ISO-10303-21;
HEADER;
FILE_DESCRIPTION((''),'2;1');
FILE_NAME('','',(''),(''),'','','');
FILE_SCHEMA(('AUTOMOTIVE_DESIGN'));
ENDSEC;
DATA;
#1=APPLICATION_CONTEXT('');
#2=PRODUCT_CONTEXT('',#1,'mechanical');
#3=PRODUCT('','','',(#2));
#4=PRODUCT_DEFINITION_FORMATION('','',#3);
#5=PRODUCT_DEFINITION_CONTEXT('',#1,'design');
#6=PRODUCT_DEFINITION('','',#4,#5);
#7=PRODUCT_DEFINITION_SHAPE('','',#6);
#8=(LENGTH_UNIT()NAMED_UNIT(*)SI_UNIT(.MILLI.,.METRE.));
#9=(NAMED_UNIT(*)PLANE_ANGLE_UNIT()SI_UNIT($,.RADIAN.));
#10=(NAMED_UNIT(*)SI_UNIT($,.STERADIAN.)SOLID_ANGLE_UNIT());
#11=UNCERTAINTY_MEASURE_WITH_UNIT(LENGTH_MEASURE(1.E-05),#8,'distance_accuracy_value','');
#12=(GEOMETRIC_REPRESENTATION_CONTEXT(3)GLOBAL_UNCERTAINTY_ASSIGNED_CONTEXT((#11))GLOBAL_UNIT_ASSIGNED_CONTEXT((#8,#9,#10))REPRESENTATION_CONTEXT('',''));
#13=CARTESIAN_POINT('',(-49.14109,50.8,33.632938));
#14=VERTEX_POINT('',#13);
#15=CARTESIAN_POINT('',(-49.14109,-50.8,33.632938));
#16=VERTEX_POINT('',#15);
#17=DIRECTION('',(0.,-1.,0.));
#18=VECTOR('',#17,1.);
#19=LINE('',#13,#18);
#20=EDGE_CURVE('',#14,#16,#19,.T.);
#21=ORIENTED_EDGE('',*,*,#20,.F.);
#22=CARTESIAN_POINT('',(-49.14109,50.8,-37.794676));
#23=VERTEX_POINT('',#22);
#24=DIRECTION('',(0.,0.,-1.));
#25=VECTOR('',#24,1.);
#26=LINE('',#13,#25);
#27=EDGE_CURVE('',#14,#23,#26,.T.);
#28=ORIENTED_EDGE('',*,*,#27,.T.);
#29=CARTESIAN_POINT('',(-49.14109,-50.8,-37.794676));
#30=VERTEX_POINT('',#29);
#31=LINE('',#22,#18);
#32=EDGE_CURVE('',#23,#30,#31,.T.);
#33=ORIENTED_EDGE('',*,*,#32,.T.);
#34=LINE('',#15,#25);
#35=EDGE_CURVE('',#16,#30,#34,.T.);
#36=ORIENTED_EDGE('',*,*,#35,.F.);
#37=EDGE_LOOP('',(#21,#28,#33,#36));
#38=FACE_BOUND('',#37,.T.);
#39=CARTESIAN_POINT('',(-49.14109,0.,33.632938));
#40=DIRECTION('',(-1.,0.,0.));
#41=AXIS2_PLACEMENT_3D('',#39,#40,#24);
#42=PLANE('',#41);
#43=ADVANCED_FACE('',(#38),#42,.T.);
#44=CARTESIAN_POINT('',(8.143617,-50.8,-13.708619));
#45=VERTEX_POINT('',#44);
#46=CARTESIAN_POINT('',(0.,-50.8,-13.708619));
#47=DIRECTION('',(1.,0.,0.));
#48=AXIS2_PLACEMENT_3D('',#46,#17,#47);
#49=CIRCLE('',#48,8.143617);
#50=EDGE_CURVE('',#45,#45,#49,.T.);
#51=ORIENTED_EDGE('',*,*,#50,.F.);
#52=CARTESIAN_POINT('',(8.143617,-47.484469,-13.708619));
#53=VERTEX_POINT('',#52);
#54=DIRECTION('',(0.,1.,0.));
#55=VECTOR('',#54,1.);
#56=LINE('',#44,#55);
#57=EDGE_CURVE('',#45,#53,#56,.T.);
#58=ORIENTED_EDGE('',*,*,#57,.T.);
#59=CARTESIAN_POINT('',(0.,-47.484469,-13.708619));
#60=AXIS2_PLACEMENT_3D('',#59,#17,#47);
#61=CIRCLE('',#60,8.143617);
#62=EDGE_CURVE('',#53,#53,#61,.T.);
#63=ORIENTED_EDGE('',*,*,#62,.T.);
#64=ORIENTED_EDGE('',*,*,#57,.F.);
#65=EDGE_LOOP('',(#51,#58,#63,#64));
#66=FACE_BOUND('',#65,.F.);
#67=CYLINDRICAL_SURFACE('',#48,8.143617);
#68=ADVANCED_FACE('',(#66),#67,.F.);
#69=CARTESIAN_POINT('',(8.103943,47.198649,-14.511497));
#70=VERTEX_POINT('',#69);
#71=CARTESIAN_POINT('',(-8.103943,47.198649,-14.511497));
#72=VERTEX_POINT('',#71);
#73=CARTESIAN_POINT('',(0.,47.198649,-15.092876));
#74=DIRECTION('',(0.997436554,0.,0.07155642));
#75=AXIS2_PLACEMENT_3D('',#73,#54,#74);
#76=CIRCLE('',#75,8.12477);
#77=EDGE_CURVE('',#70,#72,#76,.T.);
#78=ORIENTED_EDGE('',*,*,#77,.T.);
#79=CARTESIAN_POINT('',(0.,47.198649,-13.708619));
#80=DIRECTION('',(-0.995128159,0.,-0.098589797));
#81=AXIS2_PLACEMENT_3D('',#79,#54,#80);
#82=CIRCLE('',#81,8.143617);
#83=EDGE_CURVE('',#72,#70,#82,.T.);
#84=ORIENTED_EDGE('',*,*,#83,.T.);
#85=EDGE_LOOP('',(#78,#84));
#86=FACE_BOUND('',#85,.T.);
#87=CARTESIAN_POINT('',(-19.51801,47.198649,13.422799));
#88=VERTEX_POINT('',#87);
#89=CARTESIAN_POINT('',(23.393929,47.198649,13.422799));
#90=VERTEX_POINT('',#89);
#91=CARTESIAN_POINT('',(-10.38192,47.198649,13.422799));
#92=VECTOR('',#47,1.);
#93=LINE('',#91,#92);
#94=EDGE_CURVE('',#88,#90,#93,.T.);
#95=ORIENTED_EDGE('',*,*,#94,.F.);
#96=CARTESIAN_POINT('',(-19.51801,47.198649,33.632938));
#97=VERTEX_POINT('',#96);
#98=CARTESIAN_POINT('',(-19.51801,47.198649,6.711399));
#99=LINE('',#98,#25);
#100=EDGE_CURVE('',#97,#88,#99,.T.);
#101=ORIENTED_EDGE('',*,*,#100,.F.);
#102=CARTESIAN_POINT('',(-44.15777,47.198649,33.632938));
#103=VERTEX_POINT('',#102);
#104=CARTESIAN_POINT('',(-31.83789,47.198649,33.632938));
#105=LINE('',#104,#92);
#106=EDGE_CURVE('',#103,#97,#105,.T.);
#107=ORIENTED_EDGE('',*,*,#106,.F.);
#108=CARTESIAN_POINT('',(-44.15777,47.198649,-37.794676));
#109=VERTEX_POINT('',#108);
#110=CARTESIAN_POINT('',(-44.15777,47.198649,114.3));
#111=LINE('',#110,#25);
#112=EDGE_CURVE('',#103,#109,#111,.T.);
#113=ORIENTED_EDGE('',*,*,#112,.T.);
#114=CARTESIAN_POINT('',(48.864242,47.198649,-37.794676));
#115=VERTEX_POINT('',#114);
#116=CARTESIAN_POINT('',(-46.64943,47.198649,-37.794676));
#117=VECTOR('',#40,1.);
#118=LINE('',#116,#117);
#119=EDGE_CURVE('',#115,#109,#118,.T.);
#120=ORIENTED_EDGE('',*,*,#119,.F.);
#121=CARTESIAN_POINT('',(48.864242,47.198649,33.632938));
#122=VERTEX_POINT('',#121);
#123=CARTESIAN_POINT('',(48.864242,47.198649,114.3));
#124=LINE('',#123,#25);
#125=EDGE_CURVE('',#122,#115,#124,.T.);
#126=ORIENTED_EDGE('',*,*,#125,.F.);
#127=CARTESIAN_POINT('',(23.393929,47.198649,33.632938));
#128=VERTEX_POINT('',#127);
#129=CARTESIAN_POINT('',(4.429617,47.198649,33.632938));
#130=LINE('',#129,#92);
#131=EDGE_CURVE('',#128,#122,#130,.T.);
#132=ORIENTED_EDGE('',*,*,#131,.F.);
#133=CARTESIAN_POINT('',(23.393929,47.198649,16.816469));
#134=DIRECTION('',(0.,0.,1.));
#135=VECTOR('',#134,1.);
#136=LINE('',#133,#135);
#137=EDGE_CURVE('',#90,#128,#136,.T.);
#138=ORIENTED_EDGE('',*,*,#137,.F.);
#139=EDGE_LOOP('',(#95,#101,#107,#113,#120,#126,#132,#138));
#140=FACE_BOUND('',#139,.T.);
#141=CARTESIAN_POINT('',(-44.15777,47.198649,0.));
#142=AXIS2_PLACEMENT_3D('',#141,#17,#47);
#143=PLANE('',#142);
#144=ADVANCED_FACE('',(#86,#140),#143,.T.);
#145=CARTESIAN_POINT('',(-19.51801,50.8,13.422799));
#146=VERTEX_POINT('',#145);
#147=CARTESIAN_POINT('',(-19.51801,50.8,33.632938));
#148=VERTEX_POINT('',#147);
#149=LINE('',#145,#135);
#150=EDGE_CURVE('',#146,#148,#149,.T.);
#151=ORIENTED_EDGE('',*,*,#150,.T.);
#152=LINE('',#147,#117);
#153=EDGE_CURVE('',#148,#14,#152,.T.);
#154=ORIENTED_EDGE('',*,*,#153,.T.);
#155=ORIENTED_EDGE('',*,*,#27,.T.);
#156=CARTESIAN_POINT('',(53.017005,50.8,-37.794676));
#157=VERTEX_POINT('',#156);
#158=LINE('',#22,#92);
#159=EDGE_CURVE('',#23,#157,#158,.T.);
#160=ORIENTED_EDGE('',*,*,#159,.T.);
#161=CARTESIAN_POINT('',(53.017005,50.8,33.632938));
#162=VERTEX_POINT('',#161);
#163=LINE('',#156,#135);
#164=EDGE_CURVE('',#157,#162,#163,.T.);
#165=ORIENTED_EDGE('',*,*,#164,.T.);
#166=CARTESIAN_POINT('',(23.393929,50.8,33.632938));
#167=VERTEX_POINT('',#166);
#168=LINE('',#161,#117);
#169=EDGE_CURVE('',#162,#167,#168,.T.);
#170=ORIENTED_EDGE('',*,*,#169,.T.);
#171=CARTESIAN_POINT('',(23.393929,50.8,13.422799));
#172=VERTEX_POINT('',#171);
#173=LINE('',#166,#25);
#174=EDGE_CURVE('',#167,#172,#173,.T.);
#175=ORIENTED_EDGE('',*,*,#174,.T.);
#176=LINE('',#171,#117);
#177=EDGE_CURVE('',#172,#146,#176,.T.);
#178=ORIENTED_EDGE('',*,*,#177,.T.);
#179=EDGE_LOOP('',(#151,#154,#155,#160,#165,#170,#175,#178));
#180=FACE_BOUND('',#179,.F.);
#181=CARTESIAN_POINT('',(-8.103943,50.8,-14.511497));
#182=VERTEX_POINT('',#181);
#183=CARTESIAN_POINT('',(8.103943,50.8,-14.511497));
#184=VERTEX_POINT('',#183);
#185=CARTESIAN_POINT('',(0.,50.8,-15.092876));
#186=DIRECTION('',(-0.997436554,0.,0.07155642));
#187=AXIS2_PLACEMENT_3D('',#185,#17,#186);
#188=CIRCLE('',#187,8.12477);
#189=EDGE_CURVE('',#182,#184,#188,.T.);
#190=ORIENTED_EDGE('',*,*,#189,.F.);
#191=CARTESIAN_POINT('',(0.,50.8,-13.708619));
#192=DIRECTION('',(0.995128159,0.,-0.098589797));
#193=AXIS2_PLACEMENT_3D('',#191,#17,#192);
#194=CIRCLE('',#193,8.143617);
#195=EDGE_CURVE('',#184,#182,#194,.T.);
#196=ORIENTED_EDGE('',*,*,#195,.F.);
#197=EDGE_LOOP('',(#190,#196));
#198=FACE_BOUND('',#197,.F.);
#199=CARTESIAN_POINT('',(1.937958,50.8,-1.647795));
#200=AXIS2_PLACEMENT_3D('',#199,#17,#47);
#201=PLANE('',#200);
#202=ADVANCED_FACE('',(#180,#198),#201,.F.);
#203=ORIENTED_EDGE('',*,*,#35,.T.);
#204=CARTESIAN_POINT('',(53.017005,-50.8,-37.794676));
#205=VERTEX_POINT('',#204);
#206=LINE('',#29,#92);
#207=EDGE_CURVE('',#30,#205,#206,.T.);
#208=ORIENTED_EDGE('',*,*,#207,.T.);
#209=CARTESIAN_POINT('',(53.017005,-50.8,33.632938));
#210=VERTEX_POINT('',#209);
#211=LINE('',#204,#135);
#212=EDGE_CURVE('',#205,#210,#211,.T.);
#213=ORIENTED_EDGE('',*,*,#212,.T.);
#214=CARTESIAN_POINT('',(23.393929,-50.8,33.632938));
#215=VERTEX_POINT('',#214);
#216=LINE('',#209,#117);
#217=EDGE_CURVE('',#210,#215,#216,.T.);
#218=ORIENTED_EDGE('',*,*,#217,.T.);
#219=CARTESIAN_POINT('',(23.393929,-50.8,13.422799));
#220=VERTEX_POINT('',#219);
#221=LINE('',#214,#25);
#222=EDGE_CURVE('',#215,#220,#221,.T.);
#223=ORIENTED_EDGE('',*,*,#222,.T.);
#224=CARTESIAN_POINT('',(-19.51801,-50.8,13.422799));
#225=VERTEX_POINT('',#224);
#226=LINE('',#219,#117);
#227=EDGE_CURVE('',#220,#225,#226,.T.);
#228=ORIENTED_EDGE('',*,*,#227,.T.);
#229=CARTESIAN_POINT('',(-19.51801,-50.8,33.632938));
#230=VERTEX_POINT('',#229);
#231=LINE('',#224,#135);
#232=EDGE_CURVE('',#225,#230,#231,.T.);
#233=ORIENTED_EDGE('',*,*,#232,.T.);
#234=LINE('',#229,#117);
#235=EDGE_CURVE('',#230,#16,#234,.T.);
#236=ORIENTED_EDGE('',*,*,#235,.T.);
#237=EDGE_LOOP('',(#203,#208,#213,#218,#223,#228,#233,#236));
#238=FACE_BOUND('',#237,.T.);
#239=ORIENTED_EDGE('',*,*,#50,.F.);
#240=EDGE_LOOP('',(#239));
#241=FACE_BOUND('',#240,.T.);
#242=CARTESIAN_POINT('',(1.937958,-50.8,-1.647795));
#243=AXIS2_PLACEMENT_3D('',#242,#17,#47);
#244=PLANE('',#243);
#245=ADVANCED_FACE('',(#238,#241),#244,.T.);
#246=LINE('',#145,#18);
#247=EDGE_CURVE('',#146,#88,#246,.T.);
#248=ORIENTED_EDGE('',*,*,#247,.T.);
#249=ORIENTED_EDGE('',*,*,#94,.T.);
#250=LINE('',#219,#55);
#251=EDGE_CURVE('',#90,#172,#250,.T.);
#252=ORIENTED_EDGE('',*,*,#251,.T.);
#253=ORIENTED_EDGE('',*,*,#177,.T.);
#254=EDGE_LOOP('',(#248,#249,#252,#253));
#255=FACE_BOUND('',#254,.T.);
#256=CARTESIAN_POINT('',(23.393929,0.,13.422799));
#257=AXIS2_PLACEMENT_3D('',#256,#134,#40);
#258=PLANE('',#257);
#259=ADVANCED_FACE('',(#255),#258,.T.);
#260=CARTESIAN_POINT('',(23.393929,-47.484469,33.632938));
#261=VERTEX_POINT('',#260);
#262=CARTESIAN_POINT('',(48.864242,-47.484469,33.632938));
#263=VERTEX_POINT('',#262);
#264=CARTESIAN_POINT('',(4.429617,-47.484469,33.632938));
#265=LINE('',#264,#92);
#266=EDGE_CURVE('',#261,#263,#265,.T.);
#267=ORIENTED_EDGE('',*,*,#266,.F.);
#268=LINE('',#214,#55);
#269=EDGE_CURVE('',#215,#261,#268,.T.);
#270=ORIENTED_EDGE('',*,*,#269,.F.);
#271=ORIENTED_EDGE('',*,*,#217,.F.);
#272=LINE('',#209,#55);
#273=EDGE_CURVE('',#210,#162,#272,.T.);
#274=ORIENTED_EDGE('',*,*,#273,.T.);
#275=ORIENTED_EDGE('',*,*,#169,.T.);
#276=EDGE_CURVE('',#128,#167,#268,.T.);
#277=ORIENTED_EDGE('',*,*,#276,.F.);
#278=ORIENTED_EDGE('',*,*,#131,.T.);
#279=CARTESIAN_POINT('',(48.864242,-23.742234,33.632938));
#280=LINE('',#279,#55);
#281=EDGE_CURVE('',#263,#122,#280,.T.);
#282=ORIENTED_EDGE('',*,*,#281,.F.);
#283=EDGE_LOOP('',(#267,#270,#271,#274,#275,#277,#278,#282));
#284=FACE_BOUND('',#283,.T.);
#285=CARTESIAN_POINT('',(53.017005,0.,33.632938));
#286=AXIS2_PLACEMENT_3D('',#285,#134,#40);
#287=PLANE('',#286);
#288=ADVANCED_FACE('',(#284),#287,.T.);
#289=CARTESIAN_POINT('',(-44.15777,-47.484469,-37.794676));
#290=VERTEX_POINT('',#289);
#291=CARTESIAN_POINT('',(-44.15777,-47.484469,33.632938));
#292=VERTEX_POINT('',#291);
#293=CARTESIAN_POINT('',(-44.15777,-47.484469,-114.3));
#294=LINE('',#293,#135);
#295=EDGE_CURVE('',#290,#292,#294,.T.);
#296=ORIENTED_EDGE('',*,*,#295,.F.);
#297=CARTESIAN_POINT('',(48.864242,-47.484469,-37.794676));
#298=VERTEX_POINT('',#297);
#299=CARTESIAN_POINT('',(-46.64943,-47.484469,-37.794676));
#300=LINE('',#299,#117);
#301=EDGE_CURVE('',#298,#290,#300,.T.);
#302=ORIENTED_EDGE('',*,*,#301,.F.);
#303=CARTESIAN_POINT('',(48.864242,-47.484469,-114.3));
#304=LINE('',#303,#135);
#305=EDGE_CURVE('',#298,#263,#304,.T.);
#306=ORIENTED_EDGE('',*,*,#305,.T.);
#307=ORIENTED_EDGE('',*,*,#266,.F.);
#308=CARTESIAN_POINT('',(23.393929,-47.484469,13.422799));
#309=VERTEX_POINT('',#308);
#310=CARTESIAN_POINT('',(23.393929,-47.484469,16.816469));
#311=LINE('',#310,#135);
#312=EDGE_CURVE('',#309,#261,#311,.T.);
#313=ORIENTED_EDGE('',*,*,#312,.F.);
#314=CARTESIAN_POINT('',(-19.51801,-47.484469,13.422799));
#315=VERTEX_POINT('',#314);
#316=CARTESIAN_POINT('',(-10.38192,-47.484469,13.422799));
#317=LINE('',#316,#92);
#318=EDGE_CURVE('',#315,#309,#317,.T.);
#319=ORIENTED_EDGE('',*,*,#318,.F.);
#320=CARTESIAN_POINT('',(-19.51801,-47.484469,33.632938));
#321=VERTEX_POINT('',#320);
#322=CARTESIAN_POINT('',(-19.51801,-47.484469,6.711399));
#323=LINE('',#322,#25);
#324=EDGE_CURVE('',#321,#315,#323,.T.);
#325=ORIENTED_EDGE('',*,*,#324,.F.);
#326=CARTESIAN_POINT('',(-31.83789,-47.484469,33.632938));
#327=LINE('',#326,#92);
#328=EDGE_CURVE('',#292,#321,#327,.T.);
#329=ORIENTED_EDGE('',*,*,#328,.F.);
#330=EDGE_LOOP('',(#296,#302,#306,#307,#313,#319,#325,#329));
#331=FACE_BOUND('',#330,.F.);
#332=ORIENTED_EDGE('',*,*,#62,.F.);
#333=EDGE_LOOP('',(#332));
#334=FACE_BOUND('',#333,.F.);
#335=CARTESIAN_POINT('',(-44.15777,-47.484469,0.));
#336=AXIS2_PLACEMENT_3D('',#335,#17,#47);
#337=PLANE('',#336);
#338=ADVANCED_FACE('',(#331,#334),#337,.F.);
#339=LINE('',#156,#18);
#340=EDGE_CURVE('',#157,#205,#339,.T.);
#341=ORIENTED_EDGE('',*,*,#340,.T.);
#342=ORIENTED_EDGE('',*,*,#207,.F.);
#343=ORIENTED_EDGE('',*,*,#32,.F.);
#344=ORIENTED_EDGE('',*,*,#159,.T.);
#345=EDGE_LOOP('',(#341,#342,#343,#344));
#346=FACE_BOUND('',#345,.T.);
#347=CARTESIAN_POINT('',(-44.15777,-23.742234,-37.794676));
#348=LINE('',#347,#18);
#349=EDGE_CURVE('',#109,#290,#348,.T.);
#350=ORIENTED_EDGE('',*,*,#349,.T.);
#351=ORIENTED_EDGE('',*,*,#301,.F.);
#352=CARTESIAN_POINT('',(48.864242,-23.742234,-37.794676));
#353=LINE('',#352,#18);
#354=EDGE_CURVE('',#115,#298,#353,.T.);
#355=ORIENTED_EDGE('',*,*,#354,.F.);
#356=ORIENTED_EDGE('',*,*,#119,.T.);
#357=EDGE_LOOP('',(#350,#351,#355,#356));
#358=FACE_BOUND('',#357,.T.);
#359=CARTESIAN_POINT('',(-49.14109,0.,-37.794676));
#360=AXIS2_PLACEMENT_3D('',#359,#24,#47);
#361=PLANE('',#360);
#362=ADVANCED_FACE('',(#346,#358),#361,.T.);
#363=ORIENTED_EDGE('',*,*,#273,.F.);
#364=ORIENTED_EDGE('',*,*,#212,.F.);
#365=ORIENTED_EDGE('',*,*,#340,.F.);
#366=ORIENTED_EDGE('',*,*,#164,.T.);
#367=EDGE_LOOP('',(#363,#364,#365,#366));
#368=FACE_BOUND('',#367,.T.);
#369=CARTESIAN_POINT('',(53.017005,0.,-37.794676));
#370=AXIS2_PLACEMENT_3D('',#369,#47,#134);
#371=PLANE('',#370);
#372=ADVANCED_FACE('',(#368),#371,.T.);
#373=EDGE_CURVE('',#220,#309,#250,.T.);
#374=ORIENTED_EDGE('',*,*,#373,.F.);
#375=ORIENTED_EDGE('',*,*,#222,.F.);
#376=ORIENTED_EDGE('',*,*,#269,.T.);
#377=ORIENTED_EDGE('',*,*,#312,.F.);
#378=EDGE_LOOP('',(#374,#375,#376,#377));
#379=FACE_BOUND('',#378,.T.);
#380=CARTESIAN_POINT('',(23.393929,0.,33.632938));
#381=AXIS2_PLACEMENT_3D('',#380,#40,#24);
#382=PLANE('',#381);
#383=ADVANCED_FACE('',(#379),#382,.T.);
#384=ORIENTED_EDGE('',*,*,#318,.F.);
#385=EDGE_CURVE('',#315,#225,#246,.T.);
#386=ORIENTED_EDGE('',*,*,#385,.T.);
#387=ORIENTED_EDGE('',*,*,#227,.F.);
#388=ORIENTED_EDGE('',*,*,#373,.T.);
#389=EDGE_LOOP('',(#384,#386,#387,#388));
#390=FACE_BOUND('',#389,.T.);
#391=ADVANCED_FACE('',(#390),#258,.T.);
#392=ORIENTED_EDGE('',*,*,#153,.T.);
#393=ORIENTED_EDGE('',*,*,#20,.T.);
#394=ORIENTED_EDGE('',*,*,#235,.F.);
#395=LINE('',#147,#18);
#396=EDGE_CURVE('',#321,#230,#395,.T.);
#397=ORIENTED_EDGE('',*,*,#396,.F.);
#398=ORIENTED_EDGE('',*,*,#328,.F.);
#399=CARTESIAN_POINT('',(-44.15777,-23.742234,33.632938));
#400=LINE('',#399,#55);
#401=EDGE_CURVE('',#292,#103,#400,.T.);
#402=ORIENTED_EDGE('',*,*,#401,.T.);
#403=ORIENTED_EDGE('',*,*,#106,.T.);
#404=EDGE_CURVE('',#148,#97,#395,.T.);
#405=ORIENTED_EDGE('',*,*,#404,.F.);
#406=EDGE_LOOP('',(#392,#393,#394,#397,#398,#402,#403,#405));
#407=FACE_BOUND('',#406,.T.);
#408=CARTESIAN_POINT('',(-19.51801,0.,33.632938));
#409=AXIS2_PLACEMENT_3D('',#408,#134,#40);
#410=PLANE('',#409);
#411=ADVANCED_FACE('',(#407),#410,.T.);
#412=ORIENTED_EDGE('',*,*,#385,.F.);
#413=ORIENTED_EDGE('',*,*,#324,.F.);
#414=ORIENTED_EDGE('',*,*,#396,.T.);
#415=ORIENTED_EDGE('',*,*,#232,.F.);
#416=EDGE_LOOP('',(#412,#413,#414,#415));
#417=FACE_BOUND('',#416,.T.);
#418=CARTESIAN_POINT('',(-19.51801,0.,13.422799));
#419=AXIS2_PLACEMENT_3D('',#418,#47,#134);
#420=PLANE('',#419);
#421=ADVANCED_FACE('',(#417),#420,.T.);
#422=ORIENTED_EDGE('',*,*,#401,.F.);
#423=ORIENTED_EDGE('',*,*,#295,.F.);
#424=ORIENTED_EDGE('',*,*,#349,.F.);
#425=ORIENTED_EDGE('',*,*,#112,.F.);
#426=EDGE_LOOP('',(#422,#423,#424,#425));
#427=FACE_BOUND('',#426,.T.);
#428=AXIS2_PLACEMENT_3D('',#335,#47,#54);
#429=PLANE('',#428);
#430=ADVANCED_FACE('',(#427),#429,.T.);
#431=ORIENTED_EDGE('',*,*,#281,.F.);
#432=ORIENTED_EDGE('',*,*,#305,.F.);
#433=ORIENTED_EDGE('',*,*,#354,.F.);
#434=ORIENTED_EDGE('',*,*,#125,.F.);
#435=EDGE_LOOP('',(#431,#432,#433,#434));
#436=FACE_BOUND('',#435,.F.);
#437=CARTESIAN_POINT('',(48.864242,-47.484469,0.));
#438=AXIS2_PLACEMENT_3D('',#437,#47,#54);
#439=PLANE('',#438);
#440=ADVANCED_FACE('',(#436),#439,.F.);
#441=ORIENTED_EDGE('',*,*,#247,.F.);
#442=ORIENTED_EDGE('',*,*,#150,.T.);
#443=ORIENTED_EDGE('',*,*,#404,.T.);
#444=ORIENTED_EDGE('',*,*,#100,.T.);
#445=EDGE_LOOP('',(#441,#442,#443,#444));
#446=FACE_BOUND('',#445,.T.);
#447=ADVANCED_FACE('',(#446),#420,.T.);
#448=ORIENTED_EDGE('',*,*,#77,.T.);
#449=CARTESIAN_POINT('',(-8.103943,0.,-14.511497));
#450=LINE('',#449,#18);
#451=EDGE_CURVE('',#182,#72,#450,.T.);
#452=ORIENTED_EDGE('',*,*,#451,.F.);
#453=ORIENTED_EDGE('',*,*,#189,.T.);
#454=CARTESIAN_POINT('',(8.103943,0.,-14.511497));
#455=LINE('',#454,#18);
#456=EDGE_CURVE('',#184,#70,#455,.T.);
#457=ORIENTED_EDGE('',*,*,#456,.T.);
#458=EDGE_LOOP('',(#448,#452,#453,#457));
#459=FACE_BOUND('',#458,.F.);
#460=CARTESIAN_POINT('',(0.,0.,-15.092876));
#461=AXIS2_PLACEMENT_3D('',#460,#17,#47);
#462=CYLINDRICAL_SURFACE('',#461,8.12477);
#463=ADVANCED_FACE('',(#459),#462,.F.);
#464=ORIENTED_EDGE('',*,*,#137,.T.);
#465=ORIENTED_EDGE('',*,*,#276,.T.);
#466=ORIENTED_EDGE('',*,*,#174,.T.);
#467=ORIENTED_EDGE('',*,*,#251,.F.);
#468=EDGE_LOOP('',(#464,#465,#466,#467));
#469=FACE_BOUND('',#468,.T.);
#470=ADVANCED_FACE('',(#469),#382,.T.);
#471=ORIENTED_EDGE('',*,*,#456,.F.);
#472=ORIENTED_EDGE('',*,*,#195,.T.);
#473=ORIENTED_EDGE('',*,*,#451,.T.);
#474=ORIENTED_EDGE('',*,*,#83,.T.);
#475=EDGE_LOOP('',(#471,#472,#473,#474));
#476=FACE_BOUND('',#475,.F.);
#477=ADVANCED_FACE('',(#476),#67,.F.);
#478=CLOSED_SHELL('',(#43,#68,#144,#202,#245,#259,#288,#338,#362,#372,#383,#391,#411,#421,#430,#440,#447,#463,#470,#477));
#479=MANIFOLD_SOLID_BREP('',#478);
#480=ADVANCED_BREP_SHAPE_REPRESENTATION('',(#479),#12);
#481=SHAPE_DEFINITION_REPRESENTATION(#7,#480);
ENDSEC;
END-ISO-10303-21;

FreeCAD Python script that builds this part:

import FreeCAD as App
import Part
import Sketcher

V = App.Vector
Q = App.Units.Quantity


def add_polygon(sketch, points):
    """Adds a closed chain of lines whose ends are joined by coincident constraints."""
    first, n = sketch.GeometryCount, len(points)
    for a, b in zip(points, points[1:] + points[:1]):
        sketch.addGeometry(Part.LineSegment(App.Vector(*a, 0), App.Vector(*b, 0)), False)
    for i in range(n):
        sketch.addConstraint(Sketcher.Constraint("Coincident", first + i, 2, first + (i + 1) % n, 1))

doc = App.newDocument("Part")
body = doc.addObject("PartDesign::Body", "Body")

# Sketch on XZ plane
sketch1 = body.newObject("Sketcher::SketchObject", "Sketch")
sketch1.AttachmentSupport = (doc.getObject("XZ_Plane"), [""])
sketch1.MapMode = "FlatFace"
add_polygon(sketch1, [(23, 13), (-20, 13), (-20, 34), (-49, 34), (-49, -38), (53, -38), (53, 34), (23, 34)])  # lines 0-7
sketch1.addConstraint([
    Sketcher.Constraint("Horizontal", 0),
    Sketcher.Constraint("Vertical", 1),
    Sketcher.Constraint("Horizontal", 2),
    Sketcher.Constraint("Vertical", 3),
    Sketcher.Constraint("Horizontal", 4),
    Sketcher.Constraint("Vertical", 5),
    Sketcher.Constraint("Horizontal", 6),
    Sketcher.Constraint("Vertical", 7),
    Sketcher.Constraint("Horizontal", 2, 2, 5, 2),
    Sketcher.Constraint("DistanceX", 0, 2, 0, 1, Q("42.911939 mm")),
    Sketcher.Constraint("DistanceX", 2, 2, 2, 1, Q("29.62308 mm")),
    Sketcher.Constraint("DistanceY", 1, 1, 1, 2, Q("20.210139 mm")),
    Sketcher.Constraint("DistanceY", -1, 1, 0, 2, Q("13.422799 mm")),
    Sketcher.Constraint("DistanceX", 4, 1, 4, 2, Q("102.158095 mm")),
    Sketcher.Constraint("DistanceY", 3, 2, 3, 1, Q("71.427614 mm")),
    Sketcher.Constraint("DistanceX", 0, 2, -1, 1, Q("19.51801 mm")),
])
pad1 = body.newObject("PartDesign::Pad", "Pad")
pad1.Profile = sketch1
pad1.Length = Q("4 in")
pad1.Midplane = True

# Sketch on XY plane
sketch2 = body.newObject("Sketcher::SketchObject", "Sketch001")
sketch2.AttachmentSupport = (doc.getObject("XY_Plane"), [""])
sketch2.MapMode = "FlatFace"
add_polygon(sketch2, [(-44, 47), (-44, -47), (49, -47), (49, 47)])  # lines 0-3
sketch2.addConstraint([
    Sketcher.Constraint("Vertical", 0),
    Sketcher.Constraint("Horizontal", 1),
    Sketcher.Constraint("Vertical", 2),
    Sketcher.Constraint("Horizontal", 3),
    Sketcher.Constraint("DistanceX", 1, 1, 1, 2, Q("93.022012 mm")),
    Sketcher.Constraint("DistanceY", 0, 2, 0, 1, Q("94.683118 mm")),
    Sketcher.Constraint("DistanceX", 0, 2, -1, 1, Q("44.15777 mm")),
    Sketcher.Constraint("DistanceY", 0, 2, -1, 1, Q("47.484469 mm")),
])
pocket1 = body.newObject("PartDesign::Pocket", "Pocket")
pocket1.Profile = sketch2
pocket1.Length = Q("9 in")
pocket1.Midplane = True

# Sketch on XZ plane
sketch3 = body.newObject("Sketcher::SketchObject", "Sketch002")
sketch3.AttachmentSupport = (doc.getObject("XZ_Plane"), [""])
sketch3.MapMode = "FlatFace"
sketch3.addGeometry(Part.Circle(V(0, -15, 0), V(0, 0, 1), 8), False)
sketch3.addConstraint([
    Sketcher.Constraint("PointOnObject", 0, 3, -2),
    Sketcher.Constraint("Diameter", 0, Q("16.24954 mm")),
    Sketcher.Constraint("DistanceY", 0, 3, -1, 1, Q("15.092876 mm")),
])
pocket2 = body.newObject("PartDesign::Pocket", "Pocket001")
pocket2.Profile = sketch3
pocket2.Length = Q("9 in")

# Sketch on XZ plane
sketch4 = body.newObject("Sketcher::SketchObject", "Sketch003")
sketch4.AttachmentSupport = (doc.getObject("XZ_Plane"), [""])
sketch4.MapMode = "FlatFace"
sketch4.AttachmentOffset = App.Placement(V(0, 0, 2 * 25.4), App.Rotation())
sketch4.addGeometry(Part.Circle(V(0, -14, 0), V(0, 0, 1), 8), False)
sketch4.addConstraint([
    Sketcher.Constraint("PointOnObject", 0, 3, -2),
    Sketcher.Constraint("Diameter", 0, Q("16.287234 mm")),
    Sketcher.Constraint("DistanceY", 0, 3, -1, 1, Q("13.708619 mm")),
])
pocket3 = body.newObject("PartDesign::Pocket", "Pocket002")
pocket3.Profile = sketch4
pocket3.Length = Q("6 in")

doc.recompute()
